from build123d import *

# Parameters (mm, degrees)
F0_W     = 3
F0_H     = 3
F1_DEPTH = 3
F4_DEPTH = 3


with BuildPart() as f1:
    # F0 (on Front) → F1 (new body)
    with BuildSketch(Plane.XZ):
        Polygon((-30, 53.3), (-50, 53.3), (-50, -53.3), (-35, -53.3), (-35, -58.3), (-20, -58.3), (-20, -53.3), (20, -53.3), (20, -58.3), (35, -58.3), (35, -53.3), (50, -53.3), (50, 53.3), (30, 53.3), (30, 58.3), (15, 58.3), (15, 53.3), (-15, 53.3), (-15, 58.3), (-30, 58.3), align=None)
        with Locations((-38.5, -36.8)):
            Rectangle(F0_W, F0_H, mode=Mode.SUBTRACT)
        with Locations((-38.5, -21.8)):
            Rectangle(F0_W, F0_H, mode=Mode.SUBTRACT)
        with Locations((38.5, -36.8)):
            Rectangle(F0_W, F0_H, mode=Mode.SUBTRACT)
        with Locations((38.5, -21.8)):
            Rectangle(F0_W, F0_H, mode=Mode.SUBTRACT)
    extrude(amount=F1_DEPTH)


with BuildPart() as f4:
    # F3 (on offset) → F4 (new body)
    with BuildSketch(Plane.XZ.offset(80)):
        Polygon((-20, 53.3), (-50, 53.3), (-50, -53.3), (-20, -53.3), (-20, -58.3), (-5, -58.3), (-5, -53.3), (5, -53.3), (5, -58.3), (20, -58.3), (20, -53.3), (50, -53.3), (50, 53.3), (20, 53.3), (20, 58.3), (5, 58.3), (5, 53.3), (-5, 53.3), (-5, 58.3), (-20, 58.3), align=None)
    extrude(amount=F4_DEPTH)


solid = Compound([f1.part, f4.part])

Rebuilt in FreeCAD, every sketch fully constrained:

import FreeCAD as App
import Part
import Sketcher

V = App.Vector


def add_polygon(sketch, points):
    """Adds a closed chain of lines whose ends are joined by coincident constraints."""
    first, n = sketch.GeometryCount, len(points)
    for a, b in zip(points, points[1:] + points[:1]):
        sketch.addGeometry(Part.LineSegment(App.Vector(*a, 0), App.Vector(*b, 0)), False)
    for i in range(n):
        sketch.addConstraint(Sketcher.Constraint("Coincident", first + i, 2, first + (i + 1) % n, 1))

doc = App.newDocument("Part")
params = doc.addObject("Spreadsheet::Sheet", "Params")
for row, (alias, value) in enumerate([
    ("sketch1_width", "20 mm"),
    ("sketch1_width2", "15 mm"),
    ("sketch1_width3", "40 mm"),
    ("sketch1_width4", "3 mm"),
    ("sketch1_height", "5 mm"),
    ("pad1_length", "3 mm"),
    ("sketch2_width", "30 mm"),
    ("sketch2_width2", "15 mm"),
    ("sketch2_width3", "10 mm"),
    ("sketch2_height", "5 mm"),
    ("sketch2_height2", "106.6 mm"),
    ("pad2_length", "3 mm"),
], start=1):
    params.set(f"A{row}", alias)
    params.set(f"B{row}", "=" + value)
    params.setAlias(f"B{row}", alias)

body = doc.addObject("PartDesign::Body", "Body")

# Sketch on XZ plane
sketch1 = body.newObject("Sketcher::SketchObject", "Sketch")
sketch1.AttachmentSupport = (doc.getObject("XZ_Plane"), [""])
sketch1.MapMode = "FlatFace"
add_polygon(sketch1, [(-30, 53.3), (-50, 53.3), (-50, -53.3), (-35, -53.3), (-35, -58.3), (-20, -58.3), (-20, -53.3), (20, -53.3), (20, -58.3), (35, -58.3), (35, -53.3), (50, -53.3), (50, 53.3), (30, 53.3), (30, 58.3), (15, 58.3), (15, 53.3), (-15, 53.3), (-15, 58.3), (-30, 58.3)])  # lines 0-19
add_polygon(sketch1, [(-37, -38.3), (-40, -38.3), (-40, -35.3), (-37, -35.3)])  # lines 20-23
add_polygon(sketch1, [(40, -38.3), (37, -38.3), (37, -35.3), (40, -35.3)])  # lines 24-27
add_polygon(sketch1, [(-37, -23.3), (-40, -23.3), (-40, -20.3), (-37, -20.3)])  # lines 28-31
add_polygon(sketch1, [(40, -23.3), (37, -23.3), (37, -20.3), (40, -20.3)])  # lines 32-35
sketch1.addConstraint([
    Sketcher.Constraint("Horizontal", 0),
    Sketcher.Constraint("Vertical", 1),
    Sketcher.Constraint("Horizontal", 2),
    Sketcher.Constraint("Vertical", 3),
    Sketcher.Constraint("Horizontal", 4),
    Sketcher.Constraint("Vertical", 5),
    Sketcher.Constraint("Horizontal", 6),
    Sketcher.Constraint("Vertical", 7),
    Sketcher.Constraint("Horizontal", 8),
    Sketcher.Constraint("Vertical", 9),
    Sketcher.Constraint("Horizontal", 10),
    Sketcher.Constraint("Vertical", 11),
    Sketcher.Constraint("Horizontal", 12),
    Sketcher.Constraint("Vertical", 13),
    Sketcher.Constraint("Horizontal", 14),
    Sketcher.Constraint("Vertical", 15),
    Sketcher.Constraint("Horizontal", 16),
    Sketcher.Constraint("Vertical", 17),
    Sketcher.Constraint("Horizontal", 18),
    Sketcher.Constraint("Vertical", 19),
    Sketcher.Constraint("Horizontal", 20),
    Sketcher.Constraint("Vertical", 21),
    Sketcher.Constraint("Horizontal", 22),
    Sketcher.Constraint("Vertical", 23),
    Sketcher.Constraint("Horizontal", 24),
    Sketcher.Constraint("Vertical", 25),
    Sketcher.Constraint("Horizontal", 26),
    Sketcher.Constraint("Vertical", 27),
    Sketcher.Constraint("Horizontal", 28),
    Sketcher.Constraint("Vertical", 29),
    Sketcher.Constraint("Horizontal", 30),
    Sketcher.Constraint("Vertical", 31),
    Sketcher.Constraint("Horizontal", 32),
    Sketcher.Constraint("Vertical", 33),
    Sketcher.Constraint("Horizontal", 34),
    Sketcher.Constraint("Vertical", 35),
    Sketcher.Constraint("Symmetric", 0, 2, 10, 2, -1, 1),
    Sketcher.Constraint("Symmetric", 4, 2, 7, 2, -2),
    Sketcher.Constraint("Symmetric", 2, 2, 9, 2, -2),
    Sketcher.Constraint("Symmetric", 14, 2, 17, 2, -2),
    Sketcher.Constraint("Symmetric", 12, 2, 19, 2, -2),
    Sketcher.Constraint("Symmetric", 23, 2, 24, 2, -2),
    Sketcher.Constraint("Symmetric", 21, 2, 26, 2, -2),
    Sketcher.Constraint("Symmetric", 31, 2, 32, 2, -2),
    Sketcher.Constraint("Symmetric", 29, 2, 34, 2, -2),
    Sketcher.Constraint("Horizontal", 2, 2, 5, 2),
    Sketcher.Constraint("Horizontal", 12, 2, 15, 2),
    Sketcher.Constraint("Vertical", 21, 2, 28, 2),
    Sketcher.Constraint("Vertical", 23, 2, 30, 2),
    Sketcher.Constraint("Equal", 2, 4),
    Sketcher.Constraint("Equal", 10, 14),
    Sketcher.Constraint("Equal", 9, 13),
    Sketcher.Constraint("Equal", 34, 21),
    Sketcher.Constraint("Equal", 27, 29),
    Sketcher.Constraint("DistanceX", 0, 2, 0, 1, 20.0),
    Sketcher.Constraint("DistanceX", 2, 1, 2, 2, 15.0),
    Sketcher.Constraint("DistanceX", 6, 1, 6, 2, 40.0),
    Sketcher.Constraint("DistanceX", 20, 2, 20, 1, 3.0),
    Sketcher.Constraint("DistanceY", 3, 2, 3, 1, 5.0),
    Sketcher.Constraint("DistanceY", 1, 2, 1, 1, 106.6),
    Sketcher.Constraint("DistanceX", 20, 2, -1, 1, 40.0),
    Sketcher.Constraint("DistanceY", 2, 2, 20, 2, 15.0),
    Sketcher.Constraint("DistanceY", 21, 2, 28, 2, 12.0),
])
sketch1.setExpression("Constraints[90]", "Params.sketch1_width")
sketch1.setExpression("Constraints[91]", "Params.sketch1_width2")
sketch1.setExpression("Constraints[92]", "Params.sketch1_width3")
sketch1.setExpression("Constraints[93]", "Params.sketch1_width4")
sketch1.setExpression("Constraints[94]", "Params.sketch1_height")
pad1 = body.newObject("PartDesign::Pad", "Pad")
pad1.Profile = sketch1
pad1.setExpression("Length", "Params.pad1_length")
body2 = doc.addObject("PartDesign::Body", "Body001")

# Sketch on XZ plane
sketch2 = body2.newObject("Sketcher::SketchObject", "Sketch001")
sketch2.AttachmentSupport = (doc.getObject("XZ_Plane001"), [""])
sketch2.MapMode = "FlatFace"
sketch2.AttachmentOffset = App.Placement(V(0, 0, 80), App.Rotation())
add_polygon(sketch2, [(-20, 53), (-50, 53), (-50, -53), (-20, -53), (-20, -58), (-5, -58), (-5, -53), (5, -53), (5, -58), (20, -58), (20, -53), (50, -53), (50, 53), (20, 53), (20, 58), (5, 58), (5, 53), (-5, 53), (-5, 58), (-20, 58)])  # lines 0-19
sketch2.addConstraint([
    Sketcher.Constraint("Horizontal", 0),
    Sketcher.Constraint("Vertical", 1),
    Sketcher.Constraint("Horizontal", 2),
    Sketcher.Constraint("Vertical", 3),
    Sketcher.Constraint("Horizontal", 4),
    Sketcher.Constraint("Vertical", 5),
    Sketcher.Constraint("Horizontal", 6),
    Sketcher.Constraint("Vertical", 7),
    Sketcher.Constraint("Horizontal", 8),
    Sketcher.Constraint("Vertical", 9),
    Sketcher.Constraint("Horizontal", 10),
    Sketcher.Constraint("Vertical", 11),
    Sketcher.Constraint("Horizontal", 12),
    Sketcher.Constraint("Vertical", 13),
    Sketcher.Constraint("Horizontal", 14),
    Sketcher.Constraint("Vertical", 15),
    Sketcher.Constraint("Horizontal", 16),
    Sketcher.Constraint("Vertical", 17),
    Sketcher.Constraint("Horizontal", 18),
    Sketcher.Constraint("Vertical", 19),
    Sketcher.Constraint("Symmetric", 0, 2, 10, 2, -1, 1),
    Sketcher.Constraint("Symmetric", 2, 2, 12, 2, -1, 1),
    Sketcher.Constraint("Symmetric", 4, 2, 14, 2, -1, 1),
    Sketcher.Constraint("Symmetric", 6, 2, 16, 2, -1, 1),
    Sketcher.Constraint("Symmetric", 8, 2, 18, 2, -1, 1),
    Sketcher.Constraint("Symmetric", 4, 2, 7, 2, -2),
    Sketcher.Constraint("Symmetric", 2, 2, 9, 2, -2),
    Sketcher.Constraint("Horizontal", 2, 2, 5, 2),
    Sketcher.Constraint("DistanceX", 0, 2, 0, 1, 30.0),
    Sketcher.Constraint("DistanceX", 4, 1, 4, 2, 15.0),
    Sketcher.Constraint("DistanceX", 6, 1, 6, 2, 10.0),
    Sketcher.Constraint("DistanceY", 3, 2, 3, 1, 5.0),
    Sketcher.Constraint("DistanceY", 1, 2, 1, 1, 106.6),
])
sketch2.setExpression("Constraints[48]", "Params.sketch2_width")
sketch2.setExpression("Constraints[49]", "Params.sketch2_width2")
sketch2.setExpression("Constraints[50]", "Params.sketch2_width3")
sketch2.setExpression("Constraints[51]", "Params.sketch2_height")
sketch2.setExpression("Constraints[52]", "Params.sketch2_height2")
pad2 = body2.newObject("PartDesign::Pad", "Pad001")
pad2.Profile = sketch2
pad2.setExpression("Length", "Params.pad2_length")

doc.recompute()
